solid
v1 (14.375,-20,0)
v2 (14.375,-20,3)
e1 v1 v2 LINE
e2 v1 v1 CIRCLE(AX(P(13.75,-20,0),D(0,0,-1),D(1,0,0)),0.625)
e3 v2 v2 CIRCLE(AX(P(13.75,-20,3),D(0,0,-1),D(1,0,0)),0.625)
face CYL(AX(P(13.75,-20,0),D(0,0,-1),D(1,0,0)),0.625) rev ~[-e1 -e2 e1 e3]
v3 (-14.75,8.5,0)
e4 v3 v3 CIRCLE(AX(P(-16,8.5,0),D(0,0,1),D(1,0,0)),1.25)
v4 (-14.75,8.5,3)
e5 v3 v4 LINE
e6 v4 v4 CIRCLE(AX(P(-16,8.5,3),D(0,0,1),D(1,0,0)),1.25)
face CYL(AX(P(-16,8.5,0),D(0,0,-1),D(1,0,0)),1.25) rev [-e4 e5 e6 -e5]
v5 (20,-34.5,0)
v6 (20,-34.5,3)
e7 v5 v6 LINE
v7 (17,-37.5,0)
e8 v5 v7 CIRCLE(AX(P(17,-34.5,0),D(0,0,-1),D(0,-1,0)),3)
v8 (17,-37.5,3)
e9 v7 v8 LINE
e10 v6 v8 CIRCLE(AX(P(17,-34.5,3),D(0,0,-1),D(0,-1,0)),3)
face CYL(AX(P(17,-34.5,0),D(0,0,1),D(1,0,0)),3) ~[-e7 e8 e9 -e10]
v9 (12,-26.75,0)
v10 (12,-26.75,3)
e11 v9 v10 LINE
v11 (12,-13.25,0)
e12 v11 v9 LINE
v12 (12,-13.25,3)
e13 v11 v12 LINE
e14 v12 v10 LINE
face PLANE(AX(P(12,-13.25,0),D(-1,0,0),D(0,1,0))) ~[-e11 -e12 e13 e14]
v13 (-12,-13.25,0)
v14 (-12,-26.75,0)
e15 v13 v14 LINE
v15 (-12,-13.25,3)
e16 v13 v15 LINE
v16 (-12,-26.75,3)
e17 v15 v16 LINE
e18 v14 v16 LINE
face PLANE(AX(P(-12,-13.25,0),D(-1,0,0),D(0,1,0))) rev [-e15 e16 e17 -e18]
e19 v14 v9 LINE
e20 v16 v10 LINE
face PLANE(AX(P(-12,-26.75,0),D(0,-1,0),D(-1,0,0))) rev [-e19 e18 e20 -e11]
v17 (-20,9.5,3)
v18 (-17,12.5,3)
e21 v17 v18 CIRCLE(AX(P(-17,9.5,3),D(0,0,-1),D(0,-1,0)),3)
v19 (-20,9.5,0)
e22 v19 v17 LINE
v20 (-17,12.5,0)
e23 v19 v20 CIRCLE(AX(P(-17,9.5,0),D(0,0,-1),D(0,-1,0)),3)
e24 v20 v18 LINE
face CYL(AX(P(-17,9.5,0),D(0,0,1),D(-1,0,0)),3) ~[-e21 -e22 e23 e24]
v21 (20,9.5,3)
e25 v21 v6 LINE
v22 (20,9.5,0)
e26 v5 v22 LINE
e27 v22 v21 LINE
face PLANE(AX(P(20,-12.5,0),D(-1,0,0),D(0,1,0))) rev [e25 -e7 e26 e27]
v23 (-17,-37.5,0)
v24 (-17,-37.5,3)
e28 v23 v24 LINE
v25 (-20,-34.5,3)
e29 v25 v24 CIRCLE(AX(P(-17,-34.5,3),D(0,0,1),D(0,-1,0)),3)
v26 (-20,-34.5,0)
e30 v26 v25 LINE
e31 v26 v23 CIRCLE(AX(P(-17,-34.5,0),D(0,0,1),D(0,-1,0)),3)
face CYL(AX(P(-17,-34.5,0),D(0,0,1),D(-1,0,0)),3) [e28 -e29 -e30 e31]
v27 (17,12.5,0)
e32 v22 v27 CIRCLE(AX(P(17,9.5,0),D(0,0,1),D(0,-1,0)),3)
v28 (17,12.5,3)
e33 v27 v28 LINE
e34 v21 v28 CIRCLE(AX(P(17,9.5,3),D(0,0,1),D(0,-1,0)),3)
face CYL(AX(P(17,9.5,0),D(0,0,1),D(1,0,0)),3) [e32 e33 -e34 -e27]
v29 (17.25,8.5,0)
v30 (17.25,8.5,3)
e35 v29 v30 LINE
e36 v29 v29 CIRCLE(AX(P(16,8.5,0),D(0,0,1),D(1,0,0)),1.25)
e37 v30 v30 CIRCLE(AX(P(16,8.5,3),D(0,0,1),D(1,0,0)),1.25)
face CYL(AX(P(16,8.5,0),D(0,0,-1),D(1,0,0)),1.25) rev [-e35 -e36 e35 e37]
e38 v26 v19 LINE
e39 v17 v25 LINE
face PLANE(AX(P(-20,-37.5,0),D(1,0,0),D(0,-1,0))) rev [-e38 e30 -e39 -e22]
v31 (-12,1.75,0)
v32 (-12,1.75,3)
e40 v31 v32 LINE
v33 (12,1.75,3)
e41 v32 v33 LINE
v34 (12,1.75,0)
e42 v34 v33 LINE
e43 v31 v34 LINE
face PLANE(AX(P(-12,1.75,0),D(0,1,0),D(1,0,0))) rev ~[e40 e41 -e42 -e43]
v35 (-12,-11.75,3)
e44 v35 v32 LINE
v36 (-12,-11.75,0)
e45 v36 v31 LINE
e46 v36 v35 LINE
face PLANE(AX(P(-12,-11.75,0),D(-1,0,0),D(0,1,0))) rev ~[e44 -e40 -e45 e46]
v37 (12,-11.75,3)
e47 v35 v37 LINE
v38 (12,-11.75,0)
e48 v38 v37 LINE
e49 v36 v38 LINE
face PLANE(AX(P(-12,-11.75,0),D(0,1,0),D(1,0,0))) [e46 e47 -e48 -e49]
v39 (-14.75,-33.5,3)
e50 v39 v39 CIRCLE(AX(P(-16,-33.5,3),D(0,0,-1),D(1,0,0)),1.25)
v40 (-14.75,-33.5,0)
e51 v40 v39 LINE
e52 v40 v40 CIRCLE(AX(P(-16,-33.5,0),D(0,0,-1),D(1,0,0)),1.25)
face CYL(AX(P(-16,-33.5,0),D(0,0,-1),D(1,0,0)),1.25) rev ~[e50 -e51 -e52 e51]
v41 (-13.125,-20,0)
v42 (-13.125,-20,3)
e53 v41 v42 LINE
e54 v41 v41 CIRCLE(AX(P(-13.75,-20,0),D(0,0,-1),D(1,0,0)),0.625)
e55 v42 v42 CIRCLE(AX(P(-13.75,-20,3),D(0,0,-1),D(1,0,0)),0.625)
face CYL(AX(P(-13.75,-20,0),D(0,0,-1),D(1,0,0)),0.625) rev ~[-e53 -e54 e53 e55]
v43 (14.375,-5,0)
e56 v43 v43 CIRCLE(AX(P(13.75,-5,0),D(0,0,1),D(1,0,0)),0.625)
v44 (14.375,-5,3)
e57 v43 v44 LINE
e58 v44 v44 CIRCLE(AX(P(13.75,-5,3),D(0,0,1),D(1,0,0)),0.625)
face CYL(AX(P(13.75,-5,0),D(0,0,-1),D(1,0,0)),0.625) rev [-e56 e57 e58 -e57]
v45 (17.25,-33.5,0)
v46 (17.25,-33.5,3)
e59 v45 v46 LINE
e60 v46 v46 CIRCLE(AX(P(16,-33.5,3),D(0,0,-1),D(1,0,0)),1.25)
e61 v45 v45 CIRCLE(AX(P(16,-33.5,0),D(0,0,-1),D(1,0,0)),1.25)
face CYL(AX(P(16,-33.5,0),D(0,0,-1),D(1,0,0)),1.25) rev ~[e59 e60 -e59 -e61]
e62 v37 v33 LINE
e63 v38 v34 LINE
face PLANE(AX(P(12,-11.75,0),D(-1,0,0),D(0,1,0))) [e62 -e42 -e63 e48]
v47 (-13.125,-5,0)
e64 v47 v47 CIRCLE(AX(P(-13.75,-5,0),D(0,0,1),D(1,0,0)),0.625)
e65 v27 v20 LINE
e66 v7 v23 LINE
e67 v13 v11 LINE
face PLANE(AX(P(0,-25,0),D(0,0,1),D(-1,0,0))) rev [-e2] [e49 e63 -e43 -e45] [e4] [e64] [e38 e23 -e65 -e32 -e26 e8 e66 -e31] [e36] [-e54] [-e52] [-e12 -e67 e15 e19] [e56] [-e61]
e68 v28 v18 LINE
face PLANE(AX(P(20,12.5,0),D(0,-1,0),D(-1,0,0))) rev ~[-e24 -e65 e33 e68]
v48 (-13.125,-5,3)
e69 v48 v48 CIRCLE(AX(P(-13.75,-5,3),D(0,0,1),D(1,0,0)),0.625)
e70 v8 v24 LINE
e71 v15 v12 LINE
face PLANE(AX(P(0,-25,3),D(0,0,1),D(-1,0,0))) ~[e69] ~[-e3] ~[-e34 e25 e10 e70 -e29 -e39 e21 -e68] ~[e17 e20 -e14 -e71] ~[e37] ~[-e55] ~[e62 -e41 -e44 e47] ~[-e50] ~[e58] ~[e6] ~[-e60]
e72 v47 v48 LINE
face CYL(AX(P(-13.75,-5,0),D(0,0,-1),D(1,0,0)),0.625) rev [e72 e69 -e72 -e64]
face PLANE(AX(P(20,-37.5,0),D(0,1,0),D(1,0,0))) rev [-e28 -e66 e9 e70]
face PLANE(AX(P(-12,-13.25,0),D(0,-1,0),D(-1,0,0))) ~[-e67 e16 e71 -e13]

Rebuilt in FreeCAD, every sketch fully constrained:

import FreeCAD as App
import Part
import Sketcher

V = App.Vector
Q = App.Units.Quantity


def edges_at(feature, points):
    """Names of the edges that pass closest to the given points."""
    edges = feature.Shape.Edges
    near = lambda p: min(range(len(edges)), key=lambda i: edges[i].distToShape(Part.Vertex(*p))[0])
    return sorted({f"Edge{near(p) + 1}" for p in points})

doc = App.newDocument("Part")
body = doc.addObject("PartDesign::Body", "Body")

# Sketch on XY plane
sketch1 = body.newObject("Sketcher::SketchObject", "Sketch")
sketch1.AttachmentSupport = (doc.getObject("XY_Plane"), [""])
sketch1.MapMode = "FlatFace"
sketch1.addGeometry(Part.LineSegment(V(20, -12.5, 0), V(20, 12.5, 0)), False)
sketch1.addGeometry(Part.LineSegment(V(20, 12.5, 0), V(-20, 12.5, 0)), False)
sketch1.addGeometry(Part.LineSegment(V(-20, 12.5, 0), V(-20, -12.5, 0)), False)
sketch1.addGeometry(Part.LineSegment(V(-20, -12.5, 0), V(20, -12.5, 0)), False)
sketch1.addGeometry(Part.Circle(V(-13.8, -5, 0), V(0, 0, 1), 0.6), False)
sketch1.addGeometry(Part.LineSegment(V(12, -11.8, 0), V(-12, -11.8, 0)), False)
sketch1.addGeometry(Part.LineSegment(V(-12, -11.8, 0), V(-12, 1.8, 0)), False)
sketch1.addGeometry(Part.LineSegment(V(-12, 1.8, 0), V(12, 1.8, 0)), False)
sketch1.addGeometry(Part.LineSegment(V(12, 1.8, 0), V(12, -11.8, 0)), False)
sketch1.addGeometry(Part.Circle(V(13.8, -5, 0), V(0, 0, 1), 0.6), False)
sketch1.addGeometry(Part.Circle(V(-16, 8.5, 0), V(0, 0, 1), 1.2), False)
sketch1.addGeometry(Part.Circle(V(16, 8.5, 0), V(0, 0, 1), 1.2), False)
sketch1.addConstraint(Sketcher.Constraint("Coincident", 0, 2, 1, 1))
sketch1.addConstraint(Sketcher.Constraint("Coincident", 1, 2, 2, 1))
sketch1.addConstraint(Sketcher.Constraint("Coincident", 2, 2, 3, 1))
sketch1.addConstraint(Sketcher.Constraint("Coincident", 3, 2, 0, 1))
sketch1.addConstraint(Sketcher.Constraint("Coincident", 5, 2, 6, 1))
sketch1.addConstraint(Sketcher.Constraint("Coincident", 6, 2, 7, 1))
sketch1.addConstraint(Sketcher.Constraint("Coincident", 7, 2, 8, 1))
sketch1.addConstraint(Sketcher.Constraint("Coincident", 8, 2, 5, 1))
sketch1.addConstraint(Sketcher.Constraint("Vertical", 0))
sketch1.addConstraint(Sketcher.Constraint("Horizontal", 1))
sketch1.addConstraint(Sketcher.Constraint("Vertical", 2))
sketch1.addConstraint(Sketcher.Constraint("Horizontal", 3))
sketch1.addConstraint(Sketcher.Constraint("Horizontal", 5))
sketch1.addConstraint(Sketcher.Constraint("Vertical", 6))
sketch1.addConstraint(Sketcher.Constraint("Horizontal", 7))
sketch1.addConstraint(Sketcher.Constraint("Vertical", 8))
sketch1.addConstraint(Sketcher.Constraint("Equal", 4, 9))
sketch1.addConstraint(Sketcher.Constraint("Equal", 10, 11))
sketch1.addConstraint(Sketcher.Constraint("Symmetric", 0, 2, 2, 2, -1, 1))
sketch1.addConstraint(Sketcher.Constraint("Symmetric", 4, 3, 9, 3, -2))
sketch1.addConstraint(Sketcher.Constraint("Symmetric", 10, 3, 11, 3, -2))
sketch1.addConstraint(Sketcher.Constraint("Diameter", 10, Q("2.5 mm")))
sketch1.addConstraint(Sketcher.Constraint("Diameter", 4, Q("1.25 mm")))
sketch1.addConstraint(Sketcher.Constraint("DistanceX", 1, 2, 1, 1, Q("40 mm")))
sketch1.addConstraint(Sketcher.Constraint("DistanceX", 5, 2, 5, 1, Q("24 mm")))
sketch1.addConstraint(Sketcher.Constraint("DistanceY", 0, 1, 0, 2, Q("25 mm")))
sketch1.addConstraint(Sketcher.Constraint("DistanceY", 6, 1, 6, 2, Q("13.5 mm")))
sketch1.addConstraint(Sketcher.Constraint("DistanceY", 4, 3, -1, 1, Q("5 mm")))
sketch1.addConstraint(Sketcher.Constraint("DistanceX", 10, 3, -1, 1, Q("16 mm")))
sketch1.addConstraint(Sketcher.Constraint("DistanceX", 5, 2, -1, 1, Q("12 mm")))
sketch1.addConstraint(Sketcher.Constraint("DistanceY", 11, 3, 0, 2, Q("4 mm")))
sketch1.addConstraint(Sketcher.Constraint("DistanceX", 4, 3, 9, 3, Q("27.5 mm")))
sketch1.addConstraint(Sketcher.Constraint("DistanceY", 5, 2, -1, 1, Q("11.75 mm")))
pad1 = body.newObject("PartDesign::Pad", "Pad")
pad1.Profile = sketch1
pad1.Length = 3
body2 = doc.addObject("PartDesign::Body", "Body001")
doc.recompute()

body2.BaseFeature = body
doc.recompute()

mirroring = doc.addObject("Part::Mirroring", "Mirroring")
mirroring.Source = body
mirroring.Base = V(0, -12.5, 1.5)
mirroring.Normal = V(0, -1, 0)
body3 = doc.addObject("PartDesign::Body", "Body002")
body3.BaseFeature = mirroring
boolean = body2.newObject("PartDesign::Boolean", "Boolean")
boolean.Type = "Fuse"
boolean.addObjects([body3])
doc.recompute()

fillet = body2.newObject("PartDesign::Fillet", "Fillet")
fillet.Base = (boolean, edges_at(boolean, [
    (-20, -37.5, 1.5),
    (20, -37.5, 1.5),
    (20, 12.5, 1.5),
    (-20, 12.5, 1.5),
]))
fillet.Radius = 3
mirroring.Visibility = False

doc.recompute()
